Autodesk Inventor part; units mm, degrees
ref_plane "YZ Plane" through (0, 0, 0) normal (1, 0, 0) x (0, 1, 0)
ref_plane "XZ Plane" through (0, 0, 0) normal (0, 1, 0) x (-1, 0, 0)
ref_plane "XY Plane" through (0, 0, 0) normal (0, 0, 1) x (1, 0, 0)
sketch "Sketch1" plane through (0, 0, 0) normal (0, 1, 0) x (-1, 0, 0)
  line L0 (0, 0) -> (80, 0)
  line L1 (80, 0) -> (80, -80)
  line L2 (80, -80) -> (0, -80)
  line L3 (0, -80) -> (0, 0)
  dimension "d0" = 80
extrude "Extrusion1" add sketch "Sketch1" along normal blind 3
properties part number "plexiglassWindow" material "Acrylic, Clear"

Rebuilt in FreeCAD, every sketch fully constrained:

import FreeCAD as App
import Part
import Sketcher
Q = App.Units.Quantity

doc = App.newDocument("Part")
body = doc.addObject("PartDesign::Body", "Body")

sketch1 = body.newObject("Sketcher::SketchObject", "Sketch")
sketch1.AttachmentSupport = (doc.getObject("XZ_Plane"), [""])
sketch1.MapMode = "FlatFace"
sketch1.addGeometry(Part.LineSegment(App.Vector(-80, 0, 0), App.Vector(0, 0, 0)), False)
sketch1.addGeometry(Part.LineSegment(App.Vector(0, 0, 0), App.Vector(0, -80, 0)), False)
sketch1.addGeometry(Part.LineSegment(App.Vector(0, -80, 0), App.Vector(-80, -80, 0)), False)
sketch1.addGeometry(Part.LineSegment(App.Vector(-80, -80, 0), App.Vector(-80, 0, 0)), False)
sketch1.addConstraint(Sketcher.Constraint("Coincident", 0, 2, 1, 1))
sketch1.addConstraint(Sketcher.Constraint("Coincident", 1, 2, 2, 1))
sketch1.addConstraint(Sketcher.Constraint("Coincident", 2, 2, 3, 1))
sketch1.addConstraint(Sketcher.Constraint("Coincident", 3, 2, 0, 1))
sketch1.addConstraint(Sketcher.Constraint("Horizontal", 0))
sketch1.addConstraint(Sketcher.Constraint("Vertical", 1))
sketch1.addConstraint(Sketcher.Constraint("Horizontal", 2))
sketch1.addConstraint(Sketcher.Constraint("Vertical", 3))
sketch1.addConstraint(Sketcher.Constraint("Coincident", 0, 2, -1, 1))
sketch1.addConstraint(Sketcher.Constraint("Equal", 2, 1))
sketch1.addConstraint(Sketcher.Constraint("DistanceX", 0, 1, 0, 2, Q("80 mm")))
pad1 = body.newObject("PartDesign::Pad", "Pad")
pad1.Profile = sketch1
pad1.Length = 3
pad1.Reversed = True

doc.recompute()
